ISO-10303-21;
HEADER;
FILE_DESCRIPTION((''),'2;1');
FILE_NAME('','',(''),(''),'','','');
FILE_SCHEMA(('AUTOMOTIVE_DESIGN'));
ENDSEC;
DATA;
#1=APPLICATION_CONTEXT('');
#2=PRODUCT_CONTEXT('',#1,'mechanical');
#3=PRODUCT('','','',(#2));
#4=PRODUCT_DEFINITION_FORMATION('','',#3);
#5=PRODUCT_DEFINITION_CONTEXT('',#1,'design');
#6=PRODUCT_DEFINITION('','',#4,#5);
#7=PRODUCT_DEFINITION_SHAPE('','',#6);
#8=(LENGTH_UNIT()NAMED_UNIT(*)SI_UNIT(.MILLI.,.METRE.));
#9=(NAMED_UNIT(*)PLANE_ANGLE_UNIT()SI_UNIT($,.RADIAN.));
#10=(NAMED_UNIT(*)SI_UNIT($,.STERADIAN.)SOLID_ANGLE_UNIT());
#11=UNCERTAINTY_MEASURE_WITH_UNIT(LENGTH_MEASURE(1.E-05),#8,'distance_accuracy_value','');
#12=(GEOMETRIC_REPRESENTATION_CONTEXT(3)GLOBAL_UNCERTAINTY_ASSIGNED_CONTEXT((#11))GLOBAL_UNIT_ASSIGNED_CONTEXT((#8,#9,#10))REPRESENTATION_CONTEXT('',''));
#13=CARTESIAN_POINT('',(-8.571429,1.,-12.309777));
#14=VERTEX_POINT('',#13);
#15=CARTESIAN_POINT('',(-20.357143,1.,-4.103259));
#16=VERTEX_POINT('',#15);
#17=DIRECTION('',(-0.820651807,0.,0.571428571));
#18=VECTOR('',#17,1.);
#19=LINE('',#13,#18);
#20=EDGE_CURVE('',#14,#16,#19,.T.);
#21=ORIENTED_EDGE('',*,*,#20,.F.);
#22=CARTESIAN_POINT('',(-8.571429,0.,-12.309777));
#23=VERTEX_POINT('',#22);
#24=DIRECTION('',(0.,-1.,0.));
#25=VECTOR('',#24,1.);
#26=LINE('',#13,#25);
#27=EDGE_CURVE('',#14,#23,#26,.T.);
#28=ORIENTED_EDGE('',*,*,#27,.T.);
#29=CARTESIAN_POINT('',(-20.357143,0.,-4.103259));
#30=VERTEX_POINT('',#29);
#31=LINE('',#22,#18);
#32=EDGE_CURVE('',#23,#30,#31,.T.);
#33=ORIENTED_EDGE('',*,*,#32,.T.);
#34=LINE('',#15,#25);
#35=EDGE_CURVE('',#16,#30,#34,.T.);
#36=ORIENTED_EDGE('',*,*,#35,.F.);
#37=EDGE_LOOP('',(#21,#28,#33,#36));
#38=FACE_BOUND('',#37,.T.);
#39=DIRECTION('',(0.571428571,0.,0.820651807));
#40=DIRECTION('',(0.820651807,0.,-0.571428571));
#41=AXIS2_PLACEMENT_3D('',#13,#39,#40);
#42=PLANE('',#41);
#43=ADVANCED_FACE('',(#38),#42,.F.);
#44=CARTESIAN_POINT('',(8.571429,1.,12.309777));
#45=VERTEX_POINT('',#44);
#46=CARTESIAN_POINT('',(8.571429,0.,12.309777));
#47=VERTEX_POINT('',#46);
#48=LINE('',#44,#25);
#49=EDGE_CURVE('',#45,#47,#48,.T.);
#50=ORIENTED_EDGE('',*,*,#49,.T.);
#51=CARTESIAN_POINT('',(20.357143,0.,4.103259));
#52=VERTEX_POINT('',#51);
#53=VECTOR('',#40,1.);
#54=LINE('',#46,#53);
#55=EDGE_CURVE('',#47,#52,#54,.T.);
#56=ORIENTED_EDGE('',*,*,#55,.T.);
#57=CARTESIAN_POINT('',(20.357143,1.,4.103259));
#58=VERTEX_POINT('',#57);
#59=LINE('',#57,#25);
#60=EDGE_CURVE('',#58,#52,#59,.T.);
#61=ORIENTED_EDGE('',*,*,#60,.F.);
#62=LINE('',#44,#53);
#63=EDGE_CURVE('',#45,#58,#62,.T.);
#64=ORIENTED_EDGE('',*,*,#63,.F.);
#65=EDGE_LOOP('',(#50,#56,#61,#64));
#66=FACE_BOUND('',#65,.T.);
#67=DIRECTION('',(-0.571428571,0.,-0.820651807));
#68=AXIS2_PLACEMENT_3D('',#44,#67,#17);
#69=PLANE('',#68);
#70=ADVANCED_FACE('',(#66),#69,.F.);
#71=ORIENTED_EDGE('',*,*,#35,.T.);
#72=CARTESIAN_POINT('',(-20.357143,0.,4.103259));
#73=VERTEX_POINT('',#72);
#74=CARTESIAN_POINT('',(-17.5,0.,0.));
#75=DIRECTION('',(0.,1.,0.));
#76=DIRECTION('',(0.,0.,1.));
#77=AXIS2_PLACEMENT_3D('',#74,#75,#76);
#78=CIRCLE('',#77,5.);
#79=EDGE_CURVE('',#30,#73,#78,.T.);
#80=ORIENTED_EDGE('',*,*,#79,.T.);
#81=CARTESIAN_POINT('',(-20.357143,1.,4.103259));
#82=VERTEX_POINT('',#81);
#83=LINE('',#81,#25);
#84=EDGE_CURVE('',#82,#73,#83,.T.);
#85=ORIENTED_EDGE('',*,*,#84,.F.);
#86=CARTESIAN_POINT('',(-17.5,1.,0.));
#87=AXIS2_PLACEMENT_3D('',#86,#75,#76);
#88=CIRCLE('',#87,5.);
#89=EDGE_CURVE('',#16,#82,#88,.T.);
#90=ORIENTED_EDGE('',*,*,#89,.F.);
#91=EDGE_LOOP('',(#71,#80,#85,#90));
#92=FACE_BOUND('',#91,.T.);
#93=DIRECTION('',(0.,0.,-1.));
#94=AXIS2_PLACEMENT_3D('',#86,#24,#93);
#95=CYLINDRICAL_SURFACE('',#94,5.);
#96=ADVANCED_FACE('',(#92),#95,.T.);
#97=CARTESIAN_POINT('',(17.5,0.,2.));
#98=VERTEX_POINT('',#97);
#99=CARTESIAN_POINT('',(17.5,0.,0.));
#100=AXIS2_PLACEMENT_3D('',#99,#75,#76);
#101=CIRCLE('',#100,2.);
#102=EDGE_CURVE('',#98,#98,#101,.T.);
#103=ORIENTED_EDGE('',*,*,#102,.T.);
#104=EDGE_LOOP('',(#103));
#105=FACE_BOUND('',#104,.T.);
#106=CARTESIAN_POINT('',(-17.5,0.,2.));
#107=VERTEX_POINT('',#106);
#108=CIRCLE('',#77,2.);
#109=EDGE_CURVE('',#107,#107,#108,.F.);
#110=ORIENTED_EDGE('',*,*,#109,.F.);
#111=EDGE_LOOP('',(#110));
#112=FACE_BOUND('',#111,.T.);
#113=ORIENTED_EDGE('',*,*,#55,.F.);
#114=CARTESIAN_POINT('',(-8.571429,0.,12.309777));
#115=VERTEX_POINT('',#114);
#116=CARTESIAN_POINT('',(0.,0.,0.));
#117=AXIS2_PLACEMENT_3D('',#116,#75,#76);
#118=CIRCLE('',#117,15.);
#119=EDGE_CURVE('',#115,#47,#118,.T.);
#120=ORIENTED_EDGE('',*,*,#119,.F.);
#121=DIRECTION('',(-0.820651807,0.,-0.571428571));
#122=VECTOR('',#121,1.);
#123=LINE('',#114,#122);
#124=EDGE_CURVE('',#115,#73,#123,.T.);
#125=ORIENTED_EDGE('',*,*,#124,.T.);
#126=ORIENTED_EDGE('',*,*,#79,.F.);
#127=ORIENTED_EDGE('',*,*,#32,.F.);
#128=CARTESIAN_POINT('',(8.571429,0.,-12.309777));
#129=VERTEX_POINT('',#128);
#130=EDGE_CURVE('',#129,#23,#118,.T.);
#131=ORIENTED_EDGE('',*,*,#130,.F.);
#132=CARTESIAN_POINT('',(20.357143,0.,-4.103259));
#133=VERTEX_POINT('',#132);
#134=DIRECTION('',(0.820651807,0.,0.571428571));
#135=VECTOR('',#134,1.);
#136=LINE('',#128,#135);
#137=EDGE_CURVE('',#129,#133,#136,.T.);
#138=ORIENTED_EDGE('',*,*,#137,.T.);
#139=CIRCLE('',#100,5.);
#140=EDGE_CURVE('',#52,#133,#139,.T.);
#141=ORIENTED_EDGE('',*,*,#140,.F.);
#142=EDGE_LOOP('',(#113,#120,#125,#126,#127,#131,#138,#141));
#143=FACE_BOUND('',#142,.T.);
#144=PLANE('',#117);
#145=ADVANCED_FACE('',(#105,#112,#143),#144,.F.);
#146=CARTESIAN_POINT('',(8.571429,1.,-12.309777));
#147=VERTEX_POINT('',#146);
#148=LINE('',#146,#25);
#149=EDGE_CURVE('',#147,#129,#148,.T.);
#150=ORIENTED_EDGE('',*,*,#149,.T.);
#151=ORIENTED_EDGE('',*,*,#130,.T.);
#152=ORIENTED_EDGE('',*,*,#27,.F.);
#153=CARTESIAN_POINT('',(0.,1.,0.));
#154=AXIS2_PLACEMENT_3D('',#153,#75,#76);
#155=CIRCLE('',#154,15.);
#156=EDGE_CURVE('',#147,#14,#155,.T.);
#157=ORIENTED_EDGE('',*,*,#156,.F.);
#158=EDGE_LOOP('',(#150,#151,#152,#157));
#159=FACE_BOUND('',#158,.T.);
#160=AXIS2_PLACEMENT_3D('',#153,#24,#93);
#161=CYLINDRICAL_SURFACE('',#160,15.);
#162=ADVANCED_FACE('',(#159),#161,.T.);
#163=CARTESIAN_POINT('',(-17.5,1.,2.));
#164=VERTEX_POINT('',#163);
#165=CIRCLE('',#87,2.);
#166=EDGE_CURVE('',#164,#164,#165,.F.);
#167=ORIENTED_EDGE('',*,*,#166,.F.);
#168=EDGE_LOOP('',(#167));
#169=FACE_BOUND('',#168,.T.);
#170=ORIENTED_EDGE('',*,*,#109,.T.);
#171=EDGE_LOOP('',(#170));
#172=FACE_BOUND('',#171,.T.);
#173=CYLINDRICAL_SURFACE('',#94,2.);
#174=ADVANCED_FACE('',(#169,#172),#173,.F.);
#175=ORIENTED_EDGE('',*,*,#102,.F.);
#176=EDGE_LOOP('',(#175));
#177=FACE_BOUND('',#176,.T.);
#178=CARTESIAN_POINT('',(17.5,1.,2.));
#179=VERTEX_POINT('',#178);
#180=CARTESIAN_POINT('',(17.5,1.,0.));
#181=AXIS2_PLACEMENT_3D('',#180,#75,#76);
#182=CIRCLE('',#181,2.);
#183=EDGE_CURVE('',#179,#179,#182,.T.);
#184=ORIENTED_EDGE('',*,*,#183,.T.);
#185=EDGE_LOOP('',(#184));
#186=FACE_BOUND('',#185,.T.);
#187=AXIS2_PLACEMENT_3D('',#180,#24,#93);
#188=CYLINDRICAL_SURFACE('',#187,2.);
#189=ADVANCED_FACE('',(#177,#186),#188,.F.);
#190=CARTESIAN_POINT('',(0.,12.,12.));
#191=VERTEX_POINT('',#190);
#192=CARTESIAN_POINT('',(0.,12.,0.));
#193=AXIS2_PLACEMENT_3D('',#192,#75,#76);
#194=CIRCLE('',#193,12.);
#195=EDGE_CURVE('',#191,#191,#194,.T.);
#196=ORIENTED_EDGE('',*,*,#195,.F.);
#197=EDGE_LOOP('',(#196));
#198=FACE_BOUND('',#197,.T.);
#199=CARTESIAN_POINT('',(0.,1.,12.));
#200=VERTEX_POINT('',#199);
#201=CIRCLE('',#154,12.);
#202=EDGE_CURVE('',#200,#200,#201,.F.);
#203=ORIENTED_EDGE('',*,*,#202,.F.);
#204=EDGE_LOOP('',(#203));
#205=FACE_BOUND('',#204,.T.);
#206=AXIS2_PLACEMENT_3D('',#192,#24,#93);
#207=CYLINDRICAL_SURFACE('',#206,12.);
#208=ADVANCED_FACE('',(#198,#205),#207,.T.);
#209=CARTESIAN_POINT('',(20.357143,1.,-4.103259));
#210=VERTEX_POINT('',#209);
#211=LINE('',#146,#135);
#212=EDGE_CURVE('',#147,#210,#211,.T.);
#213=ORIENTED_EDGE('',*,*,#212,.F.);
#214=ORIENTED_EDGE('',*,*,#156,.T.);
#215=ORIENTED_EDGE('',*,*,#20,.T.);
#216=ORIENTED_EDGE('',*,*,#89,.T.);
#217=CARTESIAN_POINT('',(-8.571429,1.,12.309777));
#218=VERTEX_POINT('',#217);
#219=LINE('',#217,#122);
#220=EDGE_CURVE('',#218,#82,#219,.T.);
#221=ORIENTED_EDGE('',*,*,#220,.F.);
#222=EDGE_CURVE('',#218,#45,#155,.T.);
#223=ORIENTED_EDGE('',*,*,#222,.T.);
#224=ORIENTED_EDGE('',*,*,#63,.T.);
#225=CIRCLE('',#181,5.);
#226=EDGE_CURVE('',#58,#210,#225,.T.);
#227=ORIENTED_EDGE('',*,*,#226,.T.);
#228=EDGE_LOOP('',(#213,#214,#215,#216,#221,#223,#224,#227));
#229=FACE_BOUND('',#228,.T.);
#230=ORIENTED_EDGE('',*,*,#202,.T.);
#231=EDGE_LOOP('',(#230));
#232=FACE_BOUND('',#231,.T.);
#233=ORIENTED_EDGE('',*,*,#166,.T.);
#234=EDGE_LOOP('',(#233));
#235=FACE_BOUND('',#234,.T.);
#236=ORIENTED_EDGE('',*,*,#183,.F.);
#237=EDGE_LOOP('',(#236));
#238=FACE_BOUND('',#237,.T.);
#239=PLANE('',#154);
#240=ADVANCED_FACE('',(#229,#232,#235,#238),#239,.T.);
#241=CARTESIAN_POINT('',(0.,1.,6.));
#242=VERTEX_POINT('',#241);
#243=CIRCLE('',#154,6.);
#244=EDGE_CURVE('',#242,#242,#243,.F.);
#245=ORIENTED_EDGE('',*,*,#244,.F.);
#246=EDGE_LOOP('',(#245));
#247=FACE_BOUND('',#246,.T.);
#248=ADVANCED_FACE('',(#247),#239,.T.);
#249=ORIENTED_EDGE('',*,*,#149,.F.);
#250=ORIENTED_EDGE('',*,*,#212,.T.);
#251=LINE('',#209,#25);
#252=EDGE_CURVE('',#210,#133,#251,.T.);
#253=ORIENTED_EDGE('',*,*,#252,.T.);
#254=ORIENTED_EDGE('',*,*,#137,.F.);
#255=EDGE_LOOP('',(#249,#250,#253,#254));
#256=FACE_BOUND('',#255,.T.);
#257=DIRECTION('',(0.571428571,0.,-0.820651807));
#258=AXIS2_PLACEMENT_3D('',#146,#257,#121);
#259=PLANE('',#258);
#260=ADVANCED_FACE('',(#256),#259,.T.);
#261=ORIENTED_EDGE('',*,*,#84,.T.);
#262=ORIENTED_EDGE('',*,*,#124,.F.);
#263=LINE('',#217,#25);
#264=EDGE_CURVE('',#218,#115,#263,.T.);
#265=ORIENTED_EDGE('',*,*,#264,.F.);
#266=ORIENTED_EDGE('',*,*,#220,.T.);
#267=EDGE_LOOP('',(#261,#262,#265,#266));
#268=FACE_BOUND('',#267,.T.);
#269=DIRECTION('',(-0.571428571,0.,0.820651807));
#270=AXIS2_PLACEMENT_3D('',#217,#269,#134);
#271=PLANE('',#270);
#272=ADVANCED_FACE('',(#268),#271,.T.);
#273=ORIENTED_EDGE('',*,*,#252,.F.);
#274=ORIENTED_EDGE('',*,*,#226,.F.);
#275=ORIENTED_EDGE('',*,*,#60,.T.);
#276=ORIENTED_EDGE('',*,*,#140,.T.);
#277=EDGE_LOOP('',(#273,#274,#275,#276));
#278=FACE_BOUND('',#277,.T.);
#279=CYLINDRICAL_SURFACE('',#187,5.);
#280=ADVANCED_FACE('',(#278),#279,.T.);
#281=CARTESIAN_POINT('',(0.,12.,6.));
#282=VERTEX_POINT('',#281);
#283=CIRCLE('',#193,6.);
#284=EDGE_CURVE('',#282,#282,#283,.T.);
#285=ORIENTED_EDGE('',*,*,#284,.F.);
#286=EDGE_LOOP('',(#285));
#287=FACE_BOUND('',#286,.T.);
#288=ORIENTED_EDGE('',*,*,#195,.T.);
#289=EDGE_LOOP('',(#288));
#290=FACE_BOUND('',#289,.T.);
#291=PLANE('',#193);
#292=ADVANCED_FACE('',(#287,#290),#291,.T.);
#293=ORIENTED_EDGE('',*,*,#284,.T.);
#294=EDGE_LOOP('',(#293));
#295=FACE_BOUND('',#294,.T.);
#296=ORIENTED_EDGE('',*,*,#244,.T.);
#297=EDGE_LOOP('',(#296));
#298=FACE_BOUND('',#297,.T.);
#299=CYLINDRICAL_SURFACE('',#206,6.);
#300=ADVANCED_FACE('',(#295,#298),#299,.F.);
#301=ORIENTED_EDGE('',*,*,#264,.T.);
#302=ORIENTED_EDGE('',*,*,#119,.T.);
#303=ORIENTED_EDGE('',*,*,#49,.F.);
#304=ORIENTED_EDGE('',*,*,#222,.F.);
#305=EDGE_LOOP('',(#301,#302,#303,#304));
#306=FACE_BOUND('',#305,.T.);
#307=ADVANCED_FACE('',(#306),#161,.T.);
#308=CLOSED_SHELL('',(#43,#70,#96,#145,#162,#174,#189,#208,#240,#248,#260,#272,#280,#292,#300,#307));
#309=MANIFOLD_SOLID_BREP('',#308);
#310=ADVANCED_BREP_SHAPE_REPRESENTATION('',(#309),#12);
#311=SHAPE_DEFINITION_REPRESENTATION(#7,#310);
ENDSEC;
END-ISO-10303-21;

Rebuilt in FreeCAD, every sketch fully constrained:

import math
import FreeCAD as App
import Part
import Sketcher

V = App.Vector

doc = App.newDocument("Part")
body = doc.addObject("PartDesign::Body", "Body")

# Sketch on XZ plane
sketch1 = body.newObject("Sketcher::SketchObject", "Sketch")
sketch1.AttachmentSupport = (doc.getObject("XZ_Plane"), [""])
sketch1.MapMode = "FlatFace"
sketch1.addGeometry([
    Part.ArcOfCircle(Part.Circle(V(-17.5, 0, 0), V(0, 0, 1), 5), math.radians(125), math.radians(235)),  # 0
    Part.LineSegment(V(-20.4, 4.1, 0), V(-8.6, 12.3, 0)),  # 1
    Part.ArcOfCircle(Part.Circle(V(0, 0, 0), V(0, 0, 1), 15), math.radians(55), math.radians(125)),  # 2
    Part.LineSegment(V(8.6, 12.3, 0), V(20.4, 4.1, 0)),  # 3
    Part.ArcOfCircle(Part.Circle(V(17.5, 0, 0), V(0, 0, 1), 5), math.radians(-55), math.radians(55)),  # 4
    Part.LineSegment(V(20.4, -4.1, 0), V(8.6, -12.3, 0)),  # 5
    Part.ArcOfCircle(Part.Circle(V(0, 0, 0), V(0, 0, 1), 15), math.radians(-125), math.radians(-55)),  # 6
    Part.LineSegment(V(-8.6, -12.3, 0), V(-20.4, -4.1, 0)),  # 7
    Part.Circle(V(-17.5, 0, 0), V(0, 0, 1), 2),  # 8
    Part.Circle(V(17.5, 0, 0), V(0, 0, 1), 2),  # 9
], False)
sketch1.addConstraint([
    Sketcher.Constraint("Tangent", 0, 1, 1, 1),
    Sketcher.Constraint("Tangent", 1, 2, 2, 2),
    Sketcher.Constraint("Tangent", 2, 1, 3, 1),
    Sketcher.Constraint("Tangent", 3, 2, 4, 2),
    Sketcher.Constraint("Tangent", 4, 1, 5, 1),
    Sketcher.Constraint("Tangent", 5, 2, 6, 2),
    Sketcher.Constraint("Tangent", 6, 1, 7, 1),
    Sketcher.Constraint("Tangent", 7, 2, 0, 2),
    Sketcher.Constraint("Coincident", 2, 3, -1, 1),
    Sketcher.Constraint("Coincident", 6, 3, -1, 1),
    Sketcher.Constraint("Coincident", 8, 3, 0, 3),
    Sketcher.Constraint("Coincident", 9, 3, 4, 3),
    Sketcher.Constraint("Equal", 0, 4),
    Sketcher.Constraint("Equal", 2, 6),
    Sketcher.Constraint("Equal", 8, 9),
    Sketcher.Constraint("Symmetric", 0, 3, 4, 3, -1, 1),
    Sketcher.Constraint("PointOnObject", 0, 3, -1),
    Sketcher.Constraint("Diameter", 8, 4.0),
    Sketcher.Constraint("Radius", 0, 5.0),
    Sketcher.Constraint("Radius", 2, 15.0),
    Sketcher.Constraint("DistanceX", 0, 3, 4, 3, 35.0),
])
pad1 = body.newObject("PartDesign::Pad", "Pad")
pad1.Profile = sketch1
pad1.Length = 1
pad1.Reversed = True

# Sketch on XZ plane
sketch2 = body.newObject("Sketcher::SketchObject", "Sketch001")
sketch2.AttachmentSupport = (doc.getObject("XZ_Plane"), [""])
sketch2.MapMode = "FlatFace"
sketch2.addGeometry([
    Part.Circle(V(0, 0, 0), V(0, 0, 1), 12),
    Part.Circle(V(0, 0, 0), V(0, 0, 1), 6),
], False)
sketch2.addConstraint([
    Sketcher.Constraint("Coincident", 0, 3, -1, 1),
    Sketcher.Constraint("Coincident", 1, 3, -1, 1),
    Sketcher.Constraint("Diameter", 0, 24.0),
    Sketcher.Constraint("Diameter", 1, 12.0),
])
pad2 = body.newObject("PartDesign::Pad", "Pad001")
pad2.Profile = sketch2
pad2.Length = 12
pad2.Reversed = True

doc.recompute()
